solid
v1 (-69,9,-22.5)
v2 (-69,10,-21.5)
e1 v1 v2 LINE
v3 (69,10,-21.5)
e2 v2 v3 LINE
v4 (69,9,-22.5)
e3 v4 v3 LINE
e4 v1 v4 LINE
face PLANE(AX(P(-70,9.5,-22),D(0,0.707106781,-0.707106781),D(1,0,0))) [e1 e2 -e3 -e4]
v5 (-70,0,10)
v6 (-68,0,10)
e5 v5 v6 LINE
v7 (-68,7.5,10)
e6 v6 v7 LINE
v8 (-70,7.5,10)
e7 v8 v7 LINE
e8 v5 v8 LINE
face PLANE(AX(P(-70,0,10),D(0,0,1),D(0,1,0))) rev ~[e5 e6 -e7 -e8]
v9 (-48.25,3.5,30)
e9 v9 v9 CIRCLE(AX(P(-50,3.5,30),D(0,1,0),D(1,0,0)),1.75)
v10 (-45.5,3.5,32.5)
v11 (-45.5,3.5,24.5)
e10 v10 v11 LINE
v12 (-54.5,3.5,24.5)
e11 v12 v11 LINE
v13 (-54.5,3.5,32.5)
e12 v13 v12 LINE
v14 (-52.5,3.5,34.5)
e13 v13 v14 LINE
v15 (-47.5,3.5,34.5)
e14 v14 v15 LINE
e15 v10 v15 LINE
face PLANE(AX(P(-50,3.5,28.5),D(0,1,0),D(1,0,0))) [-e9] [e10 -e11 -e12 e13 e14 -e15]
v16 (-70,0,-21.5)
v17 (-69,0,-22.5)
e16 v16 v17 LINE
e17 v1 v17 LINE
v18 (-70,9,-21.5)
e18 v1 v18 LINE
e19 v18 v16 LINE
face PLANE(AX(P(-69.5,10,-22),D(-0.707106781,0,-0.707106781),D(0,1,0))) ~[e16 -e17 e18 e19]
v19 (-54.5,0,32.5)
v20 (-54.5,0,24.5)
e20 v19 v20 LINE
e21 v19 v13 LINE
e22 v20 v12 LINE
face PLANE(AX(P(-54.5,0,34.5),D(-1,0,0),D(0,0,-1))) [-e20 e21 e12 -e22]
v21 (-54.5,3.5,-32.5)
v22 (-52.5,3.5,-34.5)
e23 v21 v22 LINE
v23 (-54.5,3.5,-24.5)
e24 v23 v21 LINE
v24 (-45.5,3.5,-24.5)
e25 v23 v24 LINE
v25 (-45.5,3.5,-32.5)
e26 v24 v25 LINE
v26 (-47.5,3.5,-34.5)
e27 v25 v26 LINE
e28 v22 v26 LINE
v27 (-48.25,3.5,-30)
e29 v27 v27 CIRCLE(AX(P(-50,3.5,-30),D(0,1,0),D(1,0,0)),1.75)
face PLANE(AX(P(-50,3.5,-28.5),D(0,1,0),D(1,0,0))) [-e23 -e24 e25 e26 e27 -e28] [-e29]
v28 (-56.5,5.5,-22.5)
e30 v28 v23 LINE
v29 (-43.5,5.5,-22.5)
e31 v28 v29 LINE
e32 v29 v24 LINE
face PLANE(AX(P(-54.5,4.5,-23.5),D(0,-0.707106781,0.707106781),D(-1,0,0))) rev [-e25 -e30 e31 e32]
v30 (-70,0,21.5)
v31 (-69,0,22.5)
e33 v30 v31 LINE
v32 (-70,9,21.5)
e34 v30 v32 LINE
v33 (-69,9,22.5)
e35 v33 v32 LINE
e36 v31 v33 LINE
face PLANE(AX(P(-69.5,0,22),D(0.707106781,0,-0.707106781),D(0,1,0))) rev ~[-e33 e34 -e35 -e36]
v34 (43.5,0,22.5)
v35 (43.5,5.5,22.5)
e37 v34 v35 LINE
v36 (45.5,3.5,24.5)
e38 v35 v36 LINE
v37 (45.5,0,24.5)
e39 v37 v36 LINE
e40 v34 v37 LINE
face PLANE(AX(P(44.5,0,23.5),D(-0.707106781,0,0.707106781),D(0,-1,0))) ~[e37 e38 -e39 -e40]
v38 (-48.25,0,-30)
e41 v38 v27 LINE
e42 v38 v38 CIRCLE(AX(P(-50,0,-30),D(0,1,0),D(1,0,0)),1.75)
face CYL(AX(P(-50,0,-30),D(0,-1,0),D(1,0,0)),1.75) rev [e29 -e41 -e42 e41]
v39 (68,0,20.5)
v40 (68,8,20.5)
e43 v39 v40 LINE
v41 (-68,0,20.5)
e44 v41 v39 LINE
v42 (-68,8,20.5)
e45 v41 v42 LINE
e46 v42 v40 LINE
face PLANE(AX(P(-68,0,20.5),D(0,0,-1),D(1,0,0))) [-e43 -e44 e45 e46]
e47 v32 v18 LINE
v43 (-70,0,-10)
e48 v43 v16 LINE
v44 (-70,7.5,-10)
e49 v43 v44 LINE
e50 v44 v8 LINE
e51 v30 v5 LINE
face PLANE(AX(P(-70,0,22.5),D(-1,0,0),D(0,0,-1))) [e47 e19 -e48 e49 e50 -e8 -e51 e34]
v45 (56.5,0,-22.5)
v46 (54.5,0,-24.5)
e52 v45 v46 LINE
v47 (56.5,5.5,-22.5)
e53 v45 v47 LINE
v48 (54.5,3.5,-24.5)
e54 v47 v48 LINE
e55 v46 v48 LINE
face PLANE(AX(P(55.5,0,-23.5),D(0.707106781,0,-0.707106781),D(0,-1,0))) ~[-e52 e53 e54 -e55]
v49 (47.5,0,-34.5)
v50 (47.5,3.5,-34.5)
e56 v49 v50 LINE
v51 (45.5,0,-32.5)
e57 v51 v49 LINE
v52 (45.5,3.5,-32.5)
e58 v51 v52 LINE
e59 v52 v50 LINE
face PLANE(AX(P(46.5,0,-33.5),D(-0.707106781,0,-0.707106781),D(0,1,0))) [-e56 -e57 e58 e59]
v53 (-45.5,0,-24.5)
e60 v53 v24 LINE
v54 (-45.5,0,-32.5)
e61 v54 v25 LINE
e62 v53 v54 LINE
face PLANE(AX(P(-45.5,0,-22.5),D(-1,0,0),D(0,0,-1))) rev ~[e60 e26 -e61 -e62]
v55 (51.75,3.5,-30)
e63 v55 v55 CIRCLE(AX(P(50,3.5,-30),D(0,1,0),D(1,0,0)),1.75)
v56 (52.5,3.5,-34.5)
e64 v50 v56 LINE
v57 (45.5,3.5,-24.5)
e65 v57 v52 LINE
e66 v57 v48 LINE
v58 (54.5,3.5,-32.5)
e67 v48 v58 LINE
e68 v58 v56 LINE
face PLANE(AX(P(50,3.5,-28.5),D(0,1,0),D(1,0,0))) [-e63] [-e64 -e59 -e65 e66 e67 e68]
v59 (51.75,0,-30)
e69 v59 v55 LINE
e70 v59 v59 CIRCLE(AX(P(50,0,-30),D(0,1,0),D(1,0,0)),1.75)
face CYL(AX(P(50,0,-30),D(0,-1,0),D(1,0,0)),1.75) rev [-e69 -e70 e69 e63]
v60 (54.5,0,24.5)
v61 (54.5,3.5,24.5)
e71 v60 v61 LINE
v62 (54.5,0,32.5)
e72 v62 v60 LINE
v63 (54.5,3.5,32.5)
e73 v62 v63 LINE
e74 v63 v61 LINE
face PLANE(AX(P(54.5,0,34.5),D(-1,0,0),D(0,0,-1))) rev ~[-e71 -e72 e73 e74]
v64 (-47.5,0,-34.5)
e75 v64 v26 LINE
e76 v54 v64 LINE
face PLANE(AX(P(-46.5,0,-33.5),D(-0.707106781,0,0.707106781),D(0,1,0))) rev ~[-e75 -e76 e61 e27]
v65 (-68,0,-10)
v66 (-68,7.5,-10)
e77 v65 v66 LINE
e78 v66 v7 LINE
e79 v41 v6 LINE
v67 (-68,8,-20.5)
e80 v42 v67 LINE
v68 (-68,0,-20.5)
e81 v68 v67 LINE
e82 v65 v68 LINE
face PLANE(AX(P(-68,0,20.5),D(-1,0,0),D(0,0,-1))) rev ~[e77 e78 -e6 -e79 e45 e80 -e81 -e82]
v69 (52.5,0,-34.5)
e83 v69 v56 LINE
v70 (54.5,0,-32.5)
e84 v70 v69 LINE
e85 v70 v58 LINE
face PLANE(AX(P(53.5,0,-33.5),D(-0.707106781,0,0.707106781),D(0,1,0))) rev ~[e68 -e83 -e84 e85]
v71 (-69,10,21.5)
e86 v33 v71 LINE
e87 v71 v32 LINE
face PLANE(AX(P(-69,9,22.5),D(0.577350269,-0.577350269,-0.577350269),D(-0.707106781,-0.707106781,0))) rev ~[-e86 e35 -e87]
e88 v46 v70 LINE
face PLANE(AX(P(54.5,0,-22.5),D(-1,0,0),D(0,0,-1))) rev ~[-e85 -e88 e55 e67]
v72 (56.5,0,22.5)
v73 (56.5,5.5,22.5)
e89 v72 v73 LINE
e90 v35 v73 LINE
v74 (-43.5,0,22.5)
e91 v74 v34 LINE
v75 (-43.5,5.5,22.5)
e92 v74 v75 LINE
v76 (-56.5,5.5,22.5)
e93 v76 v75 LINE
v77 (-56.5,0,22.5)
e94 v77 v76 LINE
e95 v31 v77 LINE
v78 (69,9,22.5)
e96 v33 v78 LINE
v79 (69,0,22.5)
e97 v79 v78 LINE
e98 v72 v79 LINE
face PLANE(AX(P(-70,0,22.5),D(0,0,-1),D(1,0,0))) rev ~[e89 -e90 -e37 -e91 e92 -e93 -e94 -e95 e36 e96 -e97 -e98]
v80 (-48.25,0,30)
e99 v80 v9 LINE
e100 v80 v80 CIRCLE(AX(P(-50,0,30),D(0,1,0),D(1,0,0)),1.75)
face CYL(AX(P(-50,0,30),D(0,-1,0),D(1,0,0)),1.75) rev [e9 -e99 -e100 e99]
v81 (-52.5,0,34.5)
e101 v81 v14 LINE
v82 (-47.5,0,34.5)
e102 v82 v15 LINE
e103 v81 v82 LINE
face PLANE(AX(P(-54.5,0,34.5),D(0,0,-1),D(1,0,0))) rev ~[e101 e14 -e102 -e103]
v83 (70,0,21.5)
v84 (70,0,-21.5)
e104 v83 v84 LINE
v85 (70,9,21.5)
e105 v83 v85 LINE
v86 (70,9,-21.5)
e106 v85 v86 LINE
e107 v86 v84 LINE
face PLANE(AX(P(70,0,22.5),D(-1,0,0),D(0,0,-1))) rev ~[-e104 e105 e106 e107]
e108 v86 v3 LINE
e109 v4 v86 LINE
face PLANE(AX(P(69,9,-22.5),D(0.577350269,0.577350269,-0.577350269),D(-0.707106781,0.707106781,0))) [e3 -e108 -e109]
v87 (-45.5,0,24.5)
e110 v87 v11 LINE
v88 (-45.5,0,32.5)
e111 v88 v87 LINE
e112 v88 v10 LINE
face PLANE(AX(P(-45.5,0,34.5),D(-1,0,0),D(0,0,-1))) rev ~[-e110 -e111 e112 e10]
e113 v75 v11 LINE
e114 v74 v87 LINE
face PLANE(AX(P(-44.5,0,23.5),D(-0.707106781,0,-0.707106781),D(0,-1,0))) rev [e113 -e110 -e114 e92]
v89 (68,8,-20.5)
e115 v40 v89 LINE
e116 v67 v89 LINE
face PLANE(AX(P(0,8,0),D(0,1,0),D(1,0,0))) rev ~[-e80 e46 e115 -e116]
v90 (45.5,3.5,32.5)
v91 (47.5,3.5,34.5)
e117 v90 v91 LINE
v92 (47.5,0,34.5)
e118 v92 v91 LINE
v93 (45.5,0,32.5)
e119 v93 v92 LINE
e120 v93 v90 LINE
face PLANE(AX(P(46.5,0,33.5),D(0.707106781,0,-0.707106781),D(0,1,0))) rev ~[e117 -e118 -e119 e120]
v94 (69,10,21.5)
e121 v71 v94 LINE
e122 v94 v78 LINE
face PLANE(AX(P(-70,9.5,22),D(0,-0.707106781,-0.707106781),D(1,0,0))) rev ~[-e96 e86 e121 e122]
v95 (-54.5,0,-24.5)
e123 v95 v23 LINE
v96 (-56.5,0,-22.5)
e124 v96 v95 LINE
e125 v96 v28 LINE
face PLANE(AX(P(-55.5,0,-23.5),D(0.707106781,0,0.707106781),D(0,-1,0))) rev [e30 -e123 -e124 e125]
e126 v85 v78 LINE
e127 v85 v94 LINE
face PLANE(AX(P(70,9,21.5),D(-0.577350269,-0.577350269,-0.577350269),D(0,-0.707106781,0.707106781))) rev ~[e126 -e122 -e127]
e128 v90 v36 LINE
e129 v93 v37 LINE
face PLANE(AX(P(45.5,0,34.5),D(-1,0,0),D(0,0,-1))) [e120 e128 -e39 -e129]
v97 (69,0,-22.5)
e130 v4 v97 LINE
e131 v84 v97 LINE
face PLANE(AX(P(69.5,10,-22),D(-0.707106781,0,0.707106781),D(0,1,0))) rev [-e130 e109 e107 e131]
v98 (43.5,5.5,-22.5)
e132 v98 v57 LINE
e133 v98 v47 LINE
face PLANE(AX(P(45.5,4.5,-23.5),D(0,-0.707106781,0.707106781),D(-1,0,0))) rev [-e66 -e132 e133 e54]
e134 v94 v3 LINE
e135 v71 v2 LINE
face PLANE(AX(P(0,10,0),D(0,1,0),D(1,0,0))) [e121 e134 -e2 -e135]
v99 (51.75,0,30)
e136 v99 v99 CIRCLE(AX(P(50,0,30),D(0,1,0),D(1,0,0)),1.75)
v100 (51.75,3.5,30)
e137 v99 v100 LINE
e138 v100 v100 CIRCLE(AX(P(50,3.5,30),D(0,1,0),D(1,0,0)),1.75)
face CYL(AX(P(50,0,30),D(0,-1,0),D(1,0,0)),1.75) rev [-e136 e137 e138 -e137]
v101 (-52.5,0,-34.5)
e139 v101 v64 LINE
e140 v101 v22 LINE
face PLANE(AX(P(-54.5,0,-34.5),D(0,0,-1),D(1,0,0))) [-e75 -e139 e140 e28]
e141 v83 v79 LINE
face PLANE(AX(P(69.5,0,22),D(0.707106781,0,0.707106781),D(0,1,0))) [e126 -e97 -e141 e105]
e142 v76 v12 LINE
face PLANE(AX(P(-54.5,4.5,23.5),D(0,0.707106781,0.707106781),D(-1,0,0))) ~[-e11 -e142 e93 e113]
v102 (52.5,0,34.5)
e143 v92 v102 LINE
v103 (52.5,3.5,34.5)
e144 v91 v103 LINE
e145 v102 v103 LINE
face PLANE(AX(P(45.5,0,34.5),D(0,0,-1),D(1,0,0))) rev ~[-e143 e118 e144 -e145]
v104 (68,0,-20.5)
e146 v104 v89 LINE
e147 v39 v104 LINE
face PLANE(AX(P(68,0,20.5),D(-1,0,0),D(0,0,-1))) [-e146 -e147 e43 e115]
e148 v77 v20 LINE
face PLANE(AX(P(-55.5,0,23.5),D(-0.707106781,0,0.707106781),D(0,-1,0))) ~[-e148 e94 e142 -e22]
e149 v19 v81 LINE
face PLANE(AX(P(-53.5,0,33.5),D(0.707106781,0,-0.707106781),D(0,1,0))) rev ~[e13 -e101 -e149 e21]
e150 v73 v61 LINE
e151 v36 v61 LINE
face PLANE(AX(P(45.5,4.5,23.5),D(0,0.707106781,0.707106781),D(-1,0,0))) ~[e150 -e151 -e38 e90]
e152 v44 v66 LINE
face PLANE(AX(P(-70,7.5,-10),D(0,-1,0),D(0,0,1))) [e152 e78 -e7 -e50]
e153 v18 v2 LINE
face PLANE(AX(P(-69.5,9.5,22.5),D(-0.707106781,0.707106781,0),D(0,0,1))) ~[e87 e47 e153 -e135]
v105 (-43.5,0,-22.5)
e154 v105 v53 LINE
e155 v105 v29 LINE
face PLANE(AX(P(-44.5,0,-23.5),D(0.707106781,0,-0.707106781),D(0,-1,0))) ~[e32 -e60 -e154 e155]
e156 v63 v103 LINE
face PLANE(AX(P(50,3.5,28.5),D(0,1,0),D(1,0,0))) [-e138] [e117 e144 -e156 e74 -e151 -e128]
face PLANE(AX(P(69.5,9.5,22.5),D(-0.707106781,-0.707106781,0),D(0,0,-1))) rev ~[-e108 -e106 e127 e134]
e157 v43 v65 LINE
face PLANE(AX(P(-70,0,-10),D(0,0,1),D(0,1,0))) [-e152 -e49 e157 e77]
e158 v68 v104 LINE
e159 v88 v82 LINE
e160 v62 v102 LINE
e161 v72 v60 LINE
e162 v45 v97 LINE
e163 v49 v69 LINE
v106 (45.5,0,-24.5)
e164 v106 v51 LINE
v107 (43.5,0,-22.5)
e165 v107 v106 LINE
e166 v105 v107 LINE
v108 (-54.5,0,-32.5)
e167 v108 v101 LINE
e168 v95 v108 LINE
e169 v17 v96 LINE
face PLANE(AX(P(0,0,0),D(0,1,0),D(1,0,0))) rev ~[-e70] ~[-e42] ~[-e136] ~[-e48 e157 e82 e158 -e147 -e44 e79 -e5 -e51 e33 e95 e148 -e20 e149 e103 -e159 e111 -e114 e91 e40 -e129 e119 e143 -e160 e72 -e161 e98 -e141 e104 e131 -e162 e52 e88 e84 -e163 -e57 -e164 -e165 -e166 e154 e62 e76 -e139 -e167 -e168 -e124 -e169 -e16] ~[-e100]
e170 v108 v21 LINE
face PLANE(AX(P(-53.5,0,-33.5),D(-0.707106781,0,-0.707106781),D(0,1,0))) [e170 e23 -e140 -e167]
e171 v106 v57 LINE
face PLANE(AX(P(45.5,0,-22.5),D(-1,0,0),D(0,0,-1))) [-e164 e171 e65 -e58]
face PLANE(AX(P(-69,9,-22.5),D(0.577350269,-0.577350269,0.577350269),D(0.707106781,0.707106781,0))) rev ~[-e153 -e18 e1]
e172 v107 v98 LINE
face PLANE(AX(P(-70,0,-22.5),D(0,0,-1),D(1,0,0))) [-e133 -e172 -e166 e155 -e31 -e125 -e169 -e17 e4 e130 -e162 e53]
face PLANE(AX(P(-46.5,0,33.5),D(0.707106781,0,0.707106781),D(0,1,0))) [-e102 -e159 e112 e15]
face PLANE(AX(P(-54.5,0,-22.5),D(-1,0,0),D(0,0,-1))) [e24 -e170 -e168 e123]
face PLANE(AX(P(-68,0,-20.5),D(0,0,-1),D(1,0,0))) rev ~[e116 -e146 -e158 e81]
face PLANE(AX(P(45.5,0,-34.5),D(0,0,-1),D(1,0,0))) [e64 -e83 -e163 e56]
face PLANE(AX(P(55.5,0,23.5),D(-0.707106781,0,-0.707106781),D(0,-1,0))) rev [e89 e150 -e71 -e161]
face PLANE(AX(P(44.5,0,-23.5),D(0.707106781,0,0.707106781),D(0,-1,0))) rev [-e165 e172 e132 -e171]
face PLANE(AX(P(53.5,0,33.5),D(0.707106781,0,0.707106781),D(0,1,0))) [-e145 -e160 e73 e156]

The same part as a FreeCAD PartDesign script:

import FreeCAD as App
import Part
import Sketcher
from FreeCAD import Vector
Q = App.Units.Quantity


def edges_at(feature, points):
    """Names of the edges that pass closest to the given points."""
    edges = feature.Shape.Edges
    near = lambda p: min(range(len(edges)), key=lambda i: edges[i].distToShape(Part.Vertex(*p))[0])
    return sorted({f"Edge{near(p) + 1}" for p in points})


def add_polygon(sketch, points):
    """Adds a closed chain of lines whose ends are joined by coincident constraints."""
    first, n = sketch.GeometryCount, len(points)
    for a, b in zip(points, points[1:] + points[:1]):
        sketch.addGeometry(Part.LineSegment(App.Vector(*a, 0), App.Vector(*b, 0)), False)
    for i in range(n):
        sketch.addConstraint(Sketcher.Constraint("Coincident", first + i, 2, first + (i + 1) % n, 1))

doc = App.newDocument("Part")
body = doc.addObject("PartDesign::Body", "Body")

# Sketch on XZ plane
sketch1 = body.newObject("Sketcher::SketchObject", "Sketch")
sketch1.AttachmentSupport = (doc.getObject("XZ_Plane"), [""])
sketch1.MapMode = "FlatFace"
add_polygon(sketch1, [(-70, -22), (-70, 22), (70, 22), (70, -22)])  # lines 0-3
add_polygon(sketch1, [(68, 20), (-68, 20), (-68, -20), (68, -20)])  # lines 4-7
sketch1.addConstraint([
    Sketcher.Constraint("Vertical", 0),
    Sketcher.Constraint("Horizontal", 1),
    Sketcher.Constraint("Vertical", 2),
    Sketcher.Constraint("Horizontal", 3),
    Sketcher.Constraint("Horizontal", 4),
    Sketcher.Constraint("Vertical", 5),
    Sketcher.Constraint("Horizontal", 6),
    Sketcher.Constraint("Vertical", 7),
    Sketcher.Constraint("Symmetric", 0, 2, 2, 2, -1, 1),
    Sketcher.Constraint("Symmetric", 4, 2, 6, 2, -1, 1),
    Sketcher.Constraint("DistanceX", 1, 1, 1, 2, Q("140 mm")),
    Sketcher.Constraint("DistanceX", 4, 2, 4, 1, Q("136 mm")),
    Sketcher.Constraint("DistanceY", 0, 1, 0, 2, Q("45 mm")),
    Sketcher.Constraint("DistanceY", 5, 2, 5, 1, Q("41 mm")),
])
pad1 = body.newObject("PartDesign::Pad", "Pad")
pad1.Profile = sketch1
pad1.Length = 10
pad1.Reversed = True

# Sketch on XZ plane
sketch2 = body.newObject("Sketcher::SketchObject", "Sketch001")
sketch2.AttachmentSupport = (doc.getObject("XZ_Plane"), [""])
sketch2.MapMode = "FlatFace"
sketch2.AttachmentOffset = App.Placement(Vector(0, 0, -10), App.Rotation())
add_polygon(sketch2, [(-70, -22), (-70, 22), (70, 22), (70, -22)])  # lines 0-3
sketch2.addConstraint([
    Sketcher.Constraint("Vertical", 0),
    Sketcher.Constraint("Horizontal", 1),
    Sketcher.Constraint("Vertical", 2),
    Sketcher.Constraint("Horizontal", 3),
    Sketcher.Constraint("Symmetric", 0, 2, 2, 2, -1, 1),
    Sketcher.Constraint("DistanceX", 1, 1, 1, 2, Q("140 mm")),
    Sketcher.Constraint("DistanceY", 0, 1, 0, 2, Q("45 mm")),
])
pad2 = body.newObject("PartDesign::Pad", "Pad001")
pad2.Profile = sketch2
pad2.Length = 2
doc.recompute()

chamfer = body.newObject("PartDesign::Chamfer", "Chamfer")
chamfer.Base = (pad2, edges_at(pad2, [
    (-70, 10, 0),
    (0, 10, 22.5),
    (70, 10, 0),
    (70, 5, 22.5),
    (-70, 5, 22.5),
    (-70, 5, -22.5),
    (70, 5, -22.5),
    (0, 10, -22.5),
]))
chamfer.Size = 1

# Sketch on XZ plane
sketch3 = body.newObject("Sketcher::SketchObject", "Sketch002")
sketch3.AttachmentSupport = (doc.getObject("XZ_Plane"), [""])
sketch3.MapMode = "FlatFace"
add_polygon(sketch3, [(-54.5, -34.5), (-54.5, -22.5), (-45.5, -22.5), (-45.5, -34.5)])  # lines 0-3
sketch3.addGeometry(Part.Circle(Vector(-50, -30, 0), Vector(0, 0, 1), 1.8), False)  # 4
add_polygon(sketch3, [(45.5, -34.5), (45.5, -22.5), (54.5, -22.5), (54.5, -34.5)])  # lines 5-8
sketch3.addGeometry(Part.Circle(Vector(50, -30, 0), Vector(0, 0, 1), 1.8), False)  # 9
add_polygon(sketch3, [(-54.5, 22.5), (-54.5, 34.5), (-45.5, 34.5), (-45.5, 22.5)])  # lines 10-13
sketch3.addGeometry(Part.Circle(Vector(-50, 30, 0), Vector(0, 0, 1), 1.8), False)  # 14
add_polygon(sketch3, [(45.5, 22.5), (45.5, 34.5), (54.5, 34.5), (54.5, 22.5)])  # lines 15-18
sketch3.addGeometry(Part.Circle(Vector(50, 30, 0), Vector(0, 0, 1), 1.8), False)  # 19
sketch3.addConstraint([
    Sketcher.Constraint("Vertical", 0),
    Sketcher.Constraint("Horizontal", 1),
    Sketcher.Constraint("Vertical", 2),
    Sketcher.Constraint("Horizontal", 3),
    Sketcher.Constraint("Vertical", 5),
    Sketcher.Constraint("Horizontal", 6),
    Sketcher.Constraint("Vertical", 7),
    Sketcher.Constraint("Horizontal", 8),
    Sketcher.Constraint("Vertical", 10),
    Sketcher.Constraint("Horizontal", 11),
    Sketcher.Constraint("Vertical", 12),
    Sketcher.Constraint("Horizontal", 13),
    Sketcher.Constraint("Vertical", 15),
    Sketcher.Constraint("Horizontal", 16),
    Sketcher.Constraint("Vertical", 17),
    Sketcher.Constraint("Horizontal", 18),
    Sketcher.Constraint("Equal", 4, 9),
    Sketcher.Constraint("Equal", 9, 14),
    Sketcher.Constraint("Equal", 14, 19),
    Sketcher.Constraint("Symmetric", 9, 3, 14, 3, -1, 1),
    Sketcher.Constraint("Symmetric", 4, 3, 19, 3, -1, 1),
    Sketcher.Constraint("Symmetric", 7, 2, 10, 2, -1, 1),
    Sketcher.Constraint("Symmetric", 5, 2, 12, 2, -1, 1),
    Sketcher.Constraint("Symmetric", 2, 2, 15, 2, -1, 1),
    Sketcher.Constraint("Symmetric", 0, 2, 17, 2, -1, 1),
    Sketcher.Constraint("Symmetric", 4, 3, 9, 3, -2),
    Sketcher.Constraint("Symmetric", 1, 2, 5, 2, -2),
    Sketcher.Constraint("Symmetric", 3, 2, 7, 2, -2),
    Sketcher.Constraint("Diameter", 4, Q("3.5 mm")),
    Sketcher.Constraint("DistanceX", 1, 1, 1, 2, Q("9 mm")),
    Sketcher.Constraint("DistanceY", 0, 1, 0, 2, Q("12 mm")),
    Sketcher.Constraint("DistanceX", 4, 3, -1, 1, Q("50 mm")),
    Sketcher.Constraint("DistanceY", 4, 3, -1, 1, Q("30 mm")),
    Sketcher.Constraint("DistanceX", 1, 2, 5, 2, Q("91 mm")),
    Sketcher.Constraint("DistanceY", 0, 2, 10, 2, Q("57 mm")),
])
pad3 = body.newObject("PartDesign::Pad", "Pad002")
pad3.Profile = sketch3
pad3.Length = 3.5
pad3.Reversed = True
doc.recompute()

chamfer2 = body.newObject("PartDesign::Chamfer", "Chamfer001")
chamfer2.Base = (pad3, edges_at(pad3, [
    (-50, 3.5, 22.5),
    (-54.5, 1.75, 22.5),
    (-54.5, 1.75, 34.5),
    (-45.5, 1.75, 34.5),
    (-45.5, 1.75, 22.5),
    (50, 3.5, 22.5),
    (45.5, 1.75, 22.5),
    (45.5, 1.75, 34.5),
    (54.5, 1.75, 34.5),
    (54.5, 1.75, 22.5),
    (-50, 3.5, -22.5),
    (-54.5, 1.75, -34.5),
    (-54.5, 1.75, -22.5),
    (-45.5, 1.75, -22.5),
    (-45.5, 1.75, -34.5),
    (50, 3.5, -22.5),
    (45.5, 1.75, -34.5),
    (45.5, 1.75, -22.5),
    (54.5, 1.75, -22.5),
    (54.5, 1.75, -34.5),
]))
chamfer2.Size = 2

# Sketch on YZ plane
sketch4 = body.newObject("Sketcher::SketchObject", "Sketch003")
sketch4.AttachmentSupport = (doc.getObject("YZ_Plane"), [""])
sketch4.MapMode = "FlatFace"
sketch4.AttachmentOffset = App.Placement(Vector(0, 0, -70), App.Rotation())
add_polygon(sketch4, [(8, -10), (0, -10), (0, 10), (8, 10)])  # lines 0-3
sketch4.addConstraint([
    Sketcher.Constraint("Horizontal", 0),
    Sketcher.Constraint("Vertical", 1),
    Sketcher.Constraint("Horizontal", 2),
    Sketcher.Constraint("Vertical", 3),
    Sketcher.Constraint("Symmetric", 0, 2, 1, 2, -1, 1),
    Sketcher.Constraint("DistanceY", 1, 1, 1, 2, Q("20 mm")),
    Sketcher.Constraint("DistanceX", 0, 2, 0, 1, Q("7.5 mm")),
])
pocket1 = body.newObject("PartDesign::Pocket", "Pocket")
pocket1.Profile = sketch4
pocket1.Length = 3.5
pocket1.Reversed = True

doc.recompute()
